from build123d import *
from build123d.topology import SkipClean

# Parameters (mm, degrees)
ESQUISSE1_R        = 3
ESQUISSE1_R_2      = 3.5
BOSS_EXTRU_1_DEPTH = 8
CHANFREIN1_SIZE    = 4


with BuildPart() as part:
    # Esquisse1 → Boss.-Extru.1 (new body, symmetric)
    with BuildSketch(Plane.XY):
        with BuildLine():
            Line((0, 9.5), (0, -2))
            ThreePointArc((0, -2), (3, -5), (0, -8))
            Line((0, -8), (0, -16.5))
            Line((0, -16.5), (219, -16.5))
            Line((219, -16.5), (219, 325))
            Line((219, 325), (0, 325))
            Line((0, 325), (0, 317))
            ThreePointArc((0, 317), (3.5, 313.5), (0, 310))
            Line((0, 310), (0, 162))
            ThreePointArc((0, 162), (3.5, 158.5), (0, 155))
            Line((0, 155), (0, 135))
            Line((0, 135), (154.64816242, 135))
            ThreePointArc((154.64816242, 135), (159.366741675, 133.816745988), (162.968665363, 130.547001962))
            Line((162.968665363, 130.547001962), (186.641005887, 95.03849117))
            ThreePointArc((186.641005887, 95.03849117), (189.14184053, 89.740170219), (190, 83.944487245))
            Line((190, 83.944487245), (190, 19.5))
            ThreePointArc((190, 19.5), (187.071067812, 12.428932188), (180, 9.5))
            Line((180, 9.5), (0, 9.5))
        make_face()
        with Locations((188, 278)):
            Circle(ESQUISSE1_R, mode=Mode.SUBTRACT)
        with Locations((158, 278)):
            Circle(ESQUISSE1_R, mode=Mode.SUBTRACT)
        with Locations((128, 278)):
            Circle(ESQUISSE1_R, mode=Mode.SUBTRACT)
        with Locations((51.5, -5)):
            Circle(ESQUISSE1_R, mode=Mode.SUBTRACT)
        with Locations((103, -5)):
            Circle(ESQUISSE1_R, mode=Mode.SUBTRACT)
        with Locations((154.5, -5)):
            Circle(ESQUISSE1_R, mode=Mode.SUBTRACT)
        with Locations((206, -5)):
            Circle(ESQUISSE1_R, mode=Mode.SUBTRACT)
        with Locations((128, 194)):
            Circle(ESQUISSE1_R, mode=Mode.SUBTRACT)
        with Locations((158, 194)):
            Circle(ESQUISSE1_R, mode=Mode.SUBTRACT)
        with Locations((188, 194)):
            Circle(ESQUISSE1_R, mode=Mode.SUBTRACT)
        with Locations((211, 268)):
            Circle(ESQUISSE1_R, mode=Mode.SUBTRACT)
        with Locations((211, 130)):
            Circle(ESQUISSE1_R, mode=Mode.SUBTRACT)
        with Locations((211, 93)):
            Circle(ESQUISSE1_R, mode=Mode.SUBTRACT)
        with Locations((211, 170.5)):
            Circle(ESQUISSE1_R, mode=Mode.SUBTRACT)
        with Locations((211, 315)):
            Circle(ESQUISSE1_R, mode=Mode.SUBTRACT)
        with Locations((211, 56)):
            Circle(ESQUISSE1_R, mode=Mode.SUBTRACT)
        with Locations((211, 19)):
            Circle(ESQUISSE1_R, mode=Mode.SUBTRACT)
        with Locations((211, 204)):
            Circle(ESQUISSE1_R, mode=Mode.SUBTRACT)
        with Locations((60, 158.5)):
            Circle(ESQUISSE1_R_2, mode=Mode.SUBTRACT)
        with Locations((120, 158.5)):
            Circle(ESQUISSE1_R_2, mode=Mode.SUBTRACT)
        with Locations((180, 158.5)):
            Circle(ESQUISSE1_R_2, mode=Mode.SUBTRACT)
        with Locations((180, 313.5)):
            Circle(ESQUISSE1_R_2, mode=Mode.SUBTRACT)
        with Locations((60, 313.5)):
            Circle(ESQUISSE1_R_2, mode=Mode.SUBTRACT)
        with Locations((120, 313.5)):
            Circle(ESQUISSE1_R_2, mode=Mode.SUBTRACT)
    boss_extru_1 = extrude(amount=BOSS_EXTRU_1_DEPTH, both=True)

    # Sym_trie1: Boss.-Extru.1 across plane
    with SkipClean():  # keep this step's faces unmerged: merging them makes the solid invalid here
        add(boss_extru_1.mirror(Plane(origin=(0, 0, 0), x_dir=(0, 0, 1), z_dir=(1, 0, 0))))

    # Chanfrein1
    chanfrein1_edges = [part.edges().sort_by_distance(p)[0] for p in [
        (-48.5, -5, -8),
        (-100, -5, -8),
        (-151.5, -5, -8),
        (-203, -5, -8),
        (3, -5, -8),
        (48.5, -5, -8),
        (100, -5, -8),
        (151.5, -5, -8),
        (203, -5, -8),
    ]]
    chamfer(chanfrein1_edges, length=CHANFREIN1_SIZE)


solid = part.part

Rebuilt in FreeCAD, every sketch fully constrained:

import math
import FreeCAD as App
import Part
import Sketcher

V = App.Vector
Q = App.Units.Quantity


def edges_at(feature, points):
    """Names of the edges that pass closest to the given points."""
    edges = feature.Shape.Edges
    near = lambda p: min(range(len(edges)), key=lambda i: edges[i].distToShape(Part.Vertex(*p))[0])
    return sorted({f"Edge{near(p) + 1}" for p in points})

doc = App.newDocument("Part")
body = doc.addObject("PartDesign::Body", "Body")

sketch1 = body.newObject("Sketcher::SketchObject", "Sketch")
sketch1.AttachmentSupport = (doc.getObject("XY_Plane"), [""])
sketch1.MapMode = "FlatFace"
sketch1.addGeometry([
    Part.LineSegment(V(0, 9.5, 0), V(0, -2, 0)),
    Part.ArcOfCircle(Part.Circle(V(0, -5, 0), V(0, 0, 1), 3), math.radians(-90), math.radians(90)),
    Part.LineSegment(V(0, -8, 0), V(0, -16.5, 0)),
    Part.LineSegment(V(0, -16.5, 0), V(219, -16.5, 0)),
    Part.LineSegment(V(219, -16.5, 0), V(219, 325, 0)),
    Part.LineSegment(V(219, 325, 0), V(0, 325, 0)),
    Part.LineSegment(V(0, 325, 0), V(0, 317, 0)),
    Part.ArcOfCircle(Part.Circle(V(0, 313.5, 0), V(0, 0, 1), 3.5), math.radians(-90), math.radians(90)),
    Part.LineSegment(V(0, 310, 0), V(0, 162, 0)),
    Part.ArcOfCircle(Part.Circle(V(0, 158.5, 0), V(0, 0, 1), 3.5), math.radians(-90), math.radians(90)),
    Part.LineSegment(V(0, 155, 0), V(0, 135, 0)),
    Part.LineSegment(V(0, 135, 0), V(154.6, 135, 0)),
    Part.ArcOfCircle(Part.Circle(V(154.6, 125, 0), V(0, 0, 1), 10), math.radians(34), math.radians(90)),
    Part.LineSegment(V(163, 130.5, 0), V(186.6, 95, 0)),
    Part.ArcOfCircle(Part.Circle(V(170, 83.9, 0), V(0, 0, 1), 20), math.radians(0), math.radians(34)),
    Part.LineSegment(V(190, 83.9, 0), V(190, 19.5, 0)),
    Part.ArcOfCircle(Part.Circle(V(180, 19.5, 0), V(0, 0, 1), 10), math.radians(-90), math.radians(0)),
    Part.LineSegment(V(180, 9.5, 0), V(0, 9.5, 0)),
    Part.Circle(V(51.5, -5, 0), V(0, 0, 1), 3),
    Part.Circle(V(103, -5, 0), V(0, 0, 1), 3),
    Part.Circle(V(154.5, -5, 0), V(0, 0, 1), 3),
    Part.Circle(V(206, -5, 0), V(0, 0, 1), 3),
    Part.Circle(V(211, 19, 0), V(0, 0, 1), 3),
    Part.Circle(V(211, 56, 0), V(0, 0, 1), 3),
    Part.Circle(V(211, 93, 0), V(0, 0, 1), 3),
    Part.Circle(V(211, 130, 0), V(0, 0, 1), 3),
    Part.Circle(V(60, 158.5, 0), V(0, 0, 1), 3.5),
    Part.Circle(V(120, 158.5, 0), V(0, 0, 1), 3.5),
    Part.Circle(V(128, 194, 0), V(0, 0, 1), 3),
    Part.Circle(V(60, 313.5, 0), V(0, 0, 1), 3.5),
    Part.Circle(V(128, 278, 0), V(0, 0, 1), 3),
    Part.Circle(V(120, 313.5, 0), V(0, 0, 1), 3.5),
    Part.Circle(V(158, 194, 0), V(0, 0, 1), 3),
    Part.Circle(V(180, 158.5, 0), V(0, 0, 1), 3.5),
    Part.Circle(V(188, 194, 0), V(0, 0, 1), 3),
    Part.Circle(V(211, 170.5, 0), V(0, 0, 1), 3),
    Part.Circle(V(211, 204, 0), V(0, 0, 1), 3),
    Part.Circle(V(158, 278, 0), V(0, 0, 1), 3),
    Part.Circle(V(211, 268, 0), V(0, 0, 1), 3),
    Part.Circle(V(188, 278, 0), V(0, 0, 1), 3),
    Part.Circle(V(180, 313.5, 0), V(0, 0, 1), 3.5),
    Part.Circle(V(211, 315, 0), V(0, 0, 1), 3),
], False)
sketch1.addConstraint([
    Sketcher.Constraint("Coincident", 0, 2, 1, 2),
    Sketcher.Constraint("Coincident", 1, 1, 2, 1),
    Sketcher.Constraint("Coincident", 2, 2, 3, 1),
    Sketcher.Constraint("Coincident", 3, 2, 4, 1),
    Sketcher.Constraint("Coincident", 4, 2, 5, 1),
    Sketcher.Constraint("Coincident", 5, 2, 6, 1),
    Sketcher.Constraint("Coincident", 6, 2, 7, 2),
    Sketcher.Constraint("Coincident", 7, 1, 8, 1),
    Sketcher.Constraint("Coincident", 8, 2, 9, 2),
    Sketcher.Constraint("Coincident", 9, 1, 10, 1),
    Sketcher.Constraint("Coincident", 10, 2, 11, 1),
    Sketcher.Constraint("Tangent", 11, 2, 12, 2),
    Sketcher.Constraint("Tangent", 12, 1, 13, 1),
    Sketcher.Constraint("Tangent", 13, 2, 14, 2),
    Sketcher.Constraint("Tangent", 14, 1, 15, 1),
    Sketcher.Constraint("Tangent", 15, 2, 16, 2),
    Sketcher.Constraint("Tangent", 16, 1, 17, 1),
    Sketcher.Constraint("Coincident", 17, 2, 0, 1),
    Sketcher.Constraint("Vertical", 0),
    Sketcher.Constraint("Vertical", 2),
    Sketcher.Constraint("Horizontal", 3),
    Sketcher.Constraint("Vertical", 4),
    Sketcher.Constraint("Horizontal", 5),
    Sketcher.Constraint("Vertical", 6),
    Sketcher.Constraint("Vertical", 8),
    Sketcher.Constraint("Vertical", 10),
    Sketcher.Constraint("Horizontal", 11),
    Sketcher.Constraint("Vertical", 15),
    Sketcher.Constraint("Horizontal", 17),
    Sketcher.Constraint("Equal", 7, 9),
    Sketcher.Constraint("Equal", 12, 16),
    Sketcher.Constraint("Equal", 1, 18),
    Sketcher.Constraint("Equal", 18, 19),
    Sketcher.Constraint("Equal", 19, 20),
    Sketcher.Constraint("Equal", 20, 21),
    Sketcher.Constraint("Equal", 21, 22),
    Sketcher.Constraint("Equal", 22, 23),
    Sketcher.Constraint("Equal", 23, 24),
    Sketcher.Constraint("Equal", 24, 25),
    Sketcher.Constraint("Equal", 9, 26),
    Sketcher.Constraint("Equal", 26, 27),
    Sketcher.Constraint("Equal", 25, 28),
    Sketcher.Constraint("Equal", 27, 29),
    Sketcher.Constraint("Equal", 28, 30),
    Sketcher.Constraint("Equal", 29, 31),
    Sketcher.Constraint("Equal", 30, 32),
    Sketcher.Constraint("Equal", 31, 33),
    Sketcher.Constraint("Equal", 32, 34),
    Sketcher.Constraint("Equal", 34, 35),
    Sketcher.Constraint("Equal", 35, 36),
    Sketcher.Constraint("Equal", 36, 37),
    Sketcher.Constraint("Equal", 37, 38),
    Sketcher.Constraint("Equal", 38, 39),
    Sketcher.Constraint("Equal", 33, 40),
    Sketcher.Constraint("Equal", 39, 41),
    Sketcher.Constraint("PointOnObject", 1, 3, -2),
    Sketcher.Constraint("PointOnObject", 7, 3, -2),
    Sketcher.Constraint("PointOnObject", 9, 3, -2),
    Sketcher.Constraint("PointOnObject", 0, 2, -2),
    Sketcher.Constraint("PointOnObject", 1, 1, -2),
    Sketcher.Constraint("PointOnObject", 5, 2, -2),
    Sketcher.Constraint("PointOnObject", 7, 1, -2),
    Sketcher.Constraint("PointOnObject", 9, 1, -2),
    Sketcher.Constraint("Horizontal", 1, 3, 18, 3),
    Sketcher.Constraint("Horizontal", 18, 3, 19, 3),
    Sketcher.Constraint("Horizontal", 19, 3, 20, 3),
    Sketcher.Constraint("Horizontal", 20, 3, 21, 3),
    Sketcher.Constraint("Horizontal", 9, 3, 26, 3),
    Sketcher.Constraint("Horizontal", 26, 3, 27, 3),
    Sketcher.Constraint("Horizontal", 7, 3, 29, 3),
    Sketcher.Constraint("Horizontal", 29, 3, 31, 3),
    Sketcher.Constraint("Horizontal", 28, 3, 32, 3),
    Sketcher.Constraint("Horizontal", 27, 3, 33, 3),
    Sketcher.Constraint("Horizontal", 32, 3, 34, 3),
    Sketcher.Constraint("Horizontal", 30, 3, 37, 3),
    Sketcher.Constraint("Horizontal", 37, 3, 39, 3),
    Sketcher.Constraint("Horizontal", 31, 3, 40, 3),
    Sketcher.Constraint("Vertical", 22, 3, 23, 3),
    Sketcher.Constraint("Vertical", 23, 3, 24, 3),
    Sketcher.Constraint("Vertical", 24, 3, 25, 3),
    Sketcher.Constraint("Vertical", 26, 3, 29, 3),
    Sketcher.Constraint("Vertical", 28, 3, 30, 3),
    Sketcher.Constraint("Vertical", 27, 3, 31, 3),
    Sketcher.Constraint("Vertical", 16, 3, 33, 3),
    Sketcher.Constraint("Vertical", 25, 3, 35, 3),
    Sketcher.Constraint("Vertical", 35, 3, 36, 3),
    Sketcher.Constraint("Vertical", 32, 3, 37, 3),
    Sketcher.Constraint("Vertical", 36, 3, 38, 3),
    Sketcher.Constraint("Vertical", 34, 3, 39, 3),
    Sketcher.Constraint("Vertical", 33, 3, 40, 3),
    Sketcher.Constraint("Vertical", 38, 3, 41, 3),
    Sketcher.Constraint("Diameter", 18, Q("6 mm")),
    Sketcher.Constraint("Diameter", 26, Q("7 mm")),
    Sketcher.Constraint("Radius", 12, Q("10 mm")),
    Sketcher.Constraint("Radius", 14, Q("20 mm")),
    Sketcher.Constraint("DistanceX", 3, 1, 3, 2, Q("219 mm")),
    Sketcher.Constraint("DistanceX", 17, 2, 17, 1, Q("180 mm")),
    Sketcher.Constraint("DistanceY", 6, 2, 6, 1, Q("8 mm")),
    Sketcher.Constraint("DistanceY", 8, 2, 8, 1, Q("148 mm")),
    Sketcher.Constraint("DistanceY", 10, 2, 10, 1, Q("20 mm")),
    Sketcher.Constraint("DistanceY", 0, 2, 0, 1, Q("11.5 mm")),
    Sketcher.Constraint("DistanceY", 2, 2, 2, 1, Q("8.5 mm")),
    Sketcher.Constraint("DistanceY", 4, 1, 4, 2, Q("341.5 mm")),
    Sketcher.Constraint("DistanceY", 1, 3, -1, 1, Q("5 mm")),
    Sketcher.Constraint("DistanceX", -1, 1, 19, 3, Q("103 mm")),
    Sketcher.Constraint("DistanceX", -1, 1, 21, 3, Q("206 mm")),
    Sketcher.Constraint("DistanceX", -1, 1, 22, 3, Q("211 mm")),
    Sketcher.Constraint("DistanceY", -1, 1, 22, 3, Q("19 mm")),
    Sketcher.Constraint("DistanceY", -1, 1, 23, 3, Q("56 mm")),
    Sketcher.Constraint("DistanceY", -1, 1, 24, 3, Q("93 mm")),
    Sketcher.Constraint("DistanceY", -1, 1, 25, 3, Q("130 mm")),
    Sketcher.Constraint("DistanceX", -1, 1, 26, 3, Q("60 mm")),
    Sketcher.Constraint("DistanceX", -1, 1, 27, 3, Q("120 mm")),
    Sketcher.Constraint("DistanceX", -1, 1, 28, 3, Q("128 mm")),
    Sketcher.Constraint("DistanceY", -1, 1, 28, 3, Q("194 mm")),
    Sketcher.Constraint("DistanceY", -1, 1, 30, 3, Q("278 mm")),
    Sketcher.Constraint("DistanceX", -1, 1, 32, 3, Q("158 mm")),
    Sketcher.Constraint("DistanceX", -1, 1, 34, 3, Q("188 mm")),
    Sketcher.Constraint("DistanceY", -1, 1, 36, 3, Q("204 mm")),
    Sketcher.Constraint("DistanceY", -1, 1, 38, 3, Q("268 mm")),
    Sketcher.Constraint("DistanceY", -1, 1, 41, 3, Q("315 mm")),
    Sketcher.Constraint("DistanceX", 18, 3, 20, 3, Q("103 mm")),
    Sketcher.Constraint("DistanceY", 33, 3, 35, 3, Q("12 mm")),
    Sketcher.Constraint("DistanceX", -1, 1, 18, 3, Q("51.5 mm")),
    Sketcher.Constraint("DistanceY", -1, 1, 12, 1, Q("130.547002 mm")),
    Sketcher.Constraint("Distance", 13, Q("42.675919 mm")),
])
pad1 = body.newObject("PartDesign::Pad", "Pad")
pad1.Profile = sketch1
pad1.Length = 16
pad1.Midplane = True
doc.recompute()

mirrored = body.newObject("PartDesign::Mirrored", "Mirrored")
mirrored.Originals = [pad1]
mirrored.MirrorPlane = (doc.getObject("YZ_Plane"), [""])
body.Tip = mirrored
doc.recompute()

chamfer = body.newObject("PartDesign::Chamfer", "Chamfer")
chamfer.Base = (mirrored, edges_at(mirrored, [
    (-48.5, -5, -8),
    (-100, -5, -8),
    (-151.5, -5, -8),
    (-203, -5, -8),
    (3, -5, -8),
    (48.5, -5, -8),
    (100, -5, -8),
    (151.5, -5, -8),
    (203, -5, -8),
]))
chamfer.Size = 4

doc.recompute()
